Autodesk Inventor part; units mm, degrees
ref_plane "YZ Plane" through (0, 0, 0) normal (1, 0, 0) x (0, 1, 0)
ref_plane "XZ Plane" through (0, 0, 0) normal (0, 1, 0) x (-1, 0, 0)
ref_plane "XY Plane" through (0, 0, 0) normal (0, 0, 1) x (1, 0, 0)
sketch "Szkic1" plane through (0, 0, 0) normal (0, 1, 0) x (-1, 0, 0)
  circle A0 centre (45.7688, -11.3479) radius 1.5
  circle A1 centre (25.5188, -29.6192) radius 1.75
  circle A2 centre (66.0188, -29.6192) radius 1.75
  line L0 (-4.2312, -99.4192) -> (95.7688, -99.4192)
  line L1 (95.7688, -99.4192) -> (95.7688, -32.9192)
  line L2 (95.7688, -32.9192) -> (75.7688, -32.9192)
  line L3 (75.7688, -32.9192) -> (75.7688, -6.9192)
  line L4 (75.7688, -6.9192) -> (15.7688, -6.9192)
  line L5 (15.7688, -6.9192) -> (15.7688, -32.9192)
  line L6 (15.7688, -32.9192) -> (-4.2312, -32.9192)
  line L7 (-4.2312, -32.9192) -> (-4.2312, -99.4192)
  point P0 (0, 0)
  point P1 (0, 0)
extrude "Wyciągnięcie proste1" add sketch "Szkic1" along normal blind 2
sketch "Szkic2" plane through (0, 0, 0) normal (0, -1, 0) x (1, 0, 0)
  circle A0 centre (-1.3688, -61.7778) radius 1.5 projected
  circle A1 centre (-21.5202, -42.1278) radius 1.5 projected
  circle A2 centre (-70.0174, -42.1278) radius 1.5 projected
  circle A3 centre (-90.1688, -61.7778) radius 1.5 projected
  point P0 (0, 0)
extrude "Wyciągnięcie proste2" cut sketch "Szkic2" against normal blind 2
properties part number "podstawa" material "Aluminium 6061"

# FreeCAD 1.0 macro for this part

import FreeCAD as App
import Part
import Sketcher

doc = App.newDocument("Part")
body = doc.addObject("PartDesign::Body", "Body")

sketch1 = body.newObject("Sketcher::SketchObject", "Sketch")
sketch1.AttachmentSupport = (doc.getObject("XZ_Plane"), [""])
sketch1.MapMode = "FlatFace"
sketch1.addGeometry(Part.LineSegment(App.Vector(4.2, -32.9, 0), App.Vector(4.2, -99.4, 0)), False)
sketch1.addGeometry(Part.LineSegment(App.Vector(4.2, -99.4, 0), App.Vector(-95.8, -99.4, 0)), False)
sketch1.addGeometry(Part.LineSegment(App.Vector(-95.8, -99.4, 0), App.Vector(-95.8, -32.9, 0)), False)
sketch1.addGeometry(Part.LineSegment(App.Vector(-95.8, -32.9, 0), App.Vector(-75.8, -32.9, 0)), False)
sketch1.addGeometry(Part.LineSegment(App.Vector(-75.8, -32.9, 0), App.Vector(-75.8, -6.9, 0)), False)
sketch1.addGeometry(Part.LineSegment(App.Vector(-75.8, -6.9, 0), App.Vector(-15.8, -6.9, 0)), False)
sketch1.addGeometry(Part.LineSegment(App.Vector(-15.8, -6.9, 0), App.Vector(-15.8, -32.9, 0)), False)
sketch1.addGeometry(Part.LineSegment(App.Vector(-15.8, -32.9, 0), App.Vector(4.2, -32.9, 0)), False)
sketch1.addGeometry(Part.Circle(App.Vector(-25.5, -29.6, 0), App.Vector(0, 0, 1), 1.8), False)
sketch1.addGeometry(Part.Circle(App.Vector(-66, -29.6, 0), App.Vector(0, 0, 1), 1.8), False)
sketch1.addGeometry(Part.Circle(App.Vector(-45.8, -11.3, 0), App.Vector(0, 0, 1), 1.5), False)
sketch1.addConstraint(Sketcher.Constraint("Coincident", 0, 2, 1, 1))
sketch1.addConstraint(Sketcher.Constraint("Coincident", 1, 2, 2, 1))
sketch1.addConstraint(Sketcher.Constraint("Coincident", 2, 2, 3, 1))
sketch1.addConstraint(Sketcher.Constraint("Coincident", 3, 2, 4, 1))
sketch1.addConstraint(Sketcher.Constraint("Coincident", 4, 2, 5, 1))
sketch1.addConstraint(Sketcher.Constraint("Coincident", 5, 2, 6, 1))
sketch1.addConstraint(Sketcher.Constraint("Coincident", 6, 2, 7, 1))
sketch1.addConstraint(Sketcher.Constraint("Coincident", 7, 2, 0, 1))
sketch1.addConstraint(Sketcher.Constraint("Vertical", 0))
sketch1.addConstraint(Sketcher.Constraint("Horizontal", 1))
sketch1.addConstraint(Sketcher.Constraint("Vertical", 2))
sketch1.addConstraint(Sketcher.Constraint("Horizontal", 3))
sketch1.addConstraint(Sketcher.Constraint("Vertical", 4))
sketch1.addConstraint(Sketcher.Constraint("Horizontal", 5))
sketch1.addConstraint(Sketcher.Constraint("Vertical", 6))
sketch1.addConstraint(Sketcher.Constraint("Horizontal", 7))
sketch1.addConstraint(Sketcher.Constraint("Equal", 8, 9))
sketch1.addConstraint(Sketcher.Constraint("Horizontal", 8, 3, 9, 3))
sketch1.addConstraint(Sketcher.Constraint("Horizontal", 3, 2, 6, 2))
sketch1.addConstraint(Sketcher.Constraint("Equal", 3, 7))
sketch1.addConstraint(Sketcher.Constraint("Diameter", 10, 3.0))
sketch1.addConstraint(Sketcher.Constraint("Diameter", 8, 3.5))
sketch1.addConstraint(Sketcher.Constraint("DistanceX", 1, 2, 1, 1, 100.0))
sketch1.addConstraint(Sketcher.Constraint("DistanceX", 3, 1, 3, 2, 20.0))
sketch1.addConstraint(Sketcher.Constraint("DistanceY", 4, 1, 4, 2, 26.0))
sketch1.addConstraint(Sketcher.Constraint("DistanceY", 0, 2, 0, 1, 66.5))
sketch1.addConstraint(Sketcher.Constraint("DistanceX", 10, 3, 0, 2, 50.0))
sketch1.addConstraint(Sketcher.Constraint("DistanceX", 9, 3, 8, 3, 40.5))
sketch1.addConstraint(Sketcher.Constraint("DistanceY", 0, 2, 8, 3, 69.8))
sketch1.addConstraint(Sketcher.Constraint("DistanceX", 10, 3, 8, 3, 20.25))
sketch1.addConstraint(Sketcher.Constraint("DistanceY", 10, 3, -1, 1, 11.348))
sketch1.addConstraint(Sketcher.Constraint("DistanceX", 8, 3, -1, 1, 25.5188))
sketch1.addConstraint(Sketcher.Constraint("DistanceY", 8, 3, -1, 1, 29.6192))
pad1 = body.newObject("PartDesign::Pad", "Pad")
pad1.Profile = sketch1
pad1.Length = 2
pad1.Reversed = True

sketch2 = body.newObject("Sketcher::SketchObject", "Sketch001")
sketch2.AttachmentSupport = (doc.getObject("XZ_Plane"), [""])
sketch2.MapMode = "FlatFace"
sketch2.addGeometry(Part.Circle(App.Vector(-1.4, -61.8, 0), App.Vector(0, 0, 1), 1.5), False)
sketch2.addGeometry(Part.Circle(App.Vector(-21.5, -42.1, 0), App.Vector(0, 0, 1), 1.5), False)
sketch2.addGeometry(Part.Circle(App.Vector(-70, -42.1, 0), App.Vector(0, 0, 1), 1.5), False)
sketch2.addGeometry(Part.Circle(App.Vector(-90.2, -61.8, 0), App.Vector(0, 0, 1), 1.5), False)
sketch2.addConstraint(Sketcher.Constraint("Equal", 0, 1))
sketch2.addConstraint(Sketcher.Constraint("Equal", 1, 2))
sketch2.addConstraint(Sketcher.Constraint("Equal", 2, 3))
sketch2.addConstraint(Sketcher.Constraint("Horizontal", 1, 3, 2, 3))
sketch2.addConstraint(Sketcher.Constraint("Horizontal", 0, 3, 3, 3))
sketch2.addConstraint(Sketcher.Constraint("Diameter", 0, 3.0))
sketch2.addConstraint(Sketcher.Constraint("DistanceX", 3, 3, 0, 3, 88.8))
sketch2.addConstraint(Sketcher.Constraint("DistanceY", 0, 3, 1, 3, 19.65))
sketch2.addConstraint(Sketcher.Constraint("DistanceX", 0, 3, -1, 1, 1.3688))
sketch2.addConstraint(Sketcher.Constraint("DistanceY", 0, 3, -1, 1, 61.7778))
sketch2.addConstraint(Sketcher.Constraint("DistanceX", 1, 3, -1, 1, 21.5202))
sketch2.addConstraint(Sketcher.Constraint("DistanceX", 2, 3, -1, 1, 70.0174))
pocket1 = body.newObject("PartDesign::Pocket", "Pocket")
pocket1.Profile = sketch2
pocket1.Length = 2

doc.recompute()
